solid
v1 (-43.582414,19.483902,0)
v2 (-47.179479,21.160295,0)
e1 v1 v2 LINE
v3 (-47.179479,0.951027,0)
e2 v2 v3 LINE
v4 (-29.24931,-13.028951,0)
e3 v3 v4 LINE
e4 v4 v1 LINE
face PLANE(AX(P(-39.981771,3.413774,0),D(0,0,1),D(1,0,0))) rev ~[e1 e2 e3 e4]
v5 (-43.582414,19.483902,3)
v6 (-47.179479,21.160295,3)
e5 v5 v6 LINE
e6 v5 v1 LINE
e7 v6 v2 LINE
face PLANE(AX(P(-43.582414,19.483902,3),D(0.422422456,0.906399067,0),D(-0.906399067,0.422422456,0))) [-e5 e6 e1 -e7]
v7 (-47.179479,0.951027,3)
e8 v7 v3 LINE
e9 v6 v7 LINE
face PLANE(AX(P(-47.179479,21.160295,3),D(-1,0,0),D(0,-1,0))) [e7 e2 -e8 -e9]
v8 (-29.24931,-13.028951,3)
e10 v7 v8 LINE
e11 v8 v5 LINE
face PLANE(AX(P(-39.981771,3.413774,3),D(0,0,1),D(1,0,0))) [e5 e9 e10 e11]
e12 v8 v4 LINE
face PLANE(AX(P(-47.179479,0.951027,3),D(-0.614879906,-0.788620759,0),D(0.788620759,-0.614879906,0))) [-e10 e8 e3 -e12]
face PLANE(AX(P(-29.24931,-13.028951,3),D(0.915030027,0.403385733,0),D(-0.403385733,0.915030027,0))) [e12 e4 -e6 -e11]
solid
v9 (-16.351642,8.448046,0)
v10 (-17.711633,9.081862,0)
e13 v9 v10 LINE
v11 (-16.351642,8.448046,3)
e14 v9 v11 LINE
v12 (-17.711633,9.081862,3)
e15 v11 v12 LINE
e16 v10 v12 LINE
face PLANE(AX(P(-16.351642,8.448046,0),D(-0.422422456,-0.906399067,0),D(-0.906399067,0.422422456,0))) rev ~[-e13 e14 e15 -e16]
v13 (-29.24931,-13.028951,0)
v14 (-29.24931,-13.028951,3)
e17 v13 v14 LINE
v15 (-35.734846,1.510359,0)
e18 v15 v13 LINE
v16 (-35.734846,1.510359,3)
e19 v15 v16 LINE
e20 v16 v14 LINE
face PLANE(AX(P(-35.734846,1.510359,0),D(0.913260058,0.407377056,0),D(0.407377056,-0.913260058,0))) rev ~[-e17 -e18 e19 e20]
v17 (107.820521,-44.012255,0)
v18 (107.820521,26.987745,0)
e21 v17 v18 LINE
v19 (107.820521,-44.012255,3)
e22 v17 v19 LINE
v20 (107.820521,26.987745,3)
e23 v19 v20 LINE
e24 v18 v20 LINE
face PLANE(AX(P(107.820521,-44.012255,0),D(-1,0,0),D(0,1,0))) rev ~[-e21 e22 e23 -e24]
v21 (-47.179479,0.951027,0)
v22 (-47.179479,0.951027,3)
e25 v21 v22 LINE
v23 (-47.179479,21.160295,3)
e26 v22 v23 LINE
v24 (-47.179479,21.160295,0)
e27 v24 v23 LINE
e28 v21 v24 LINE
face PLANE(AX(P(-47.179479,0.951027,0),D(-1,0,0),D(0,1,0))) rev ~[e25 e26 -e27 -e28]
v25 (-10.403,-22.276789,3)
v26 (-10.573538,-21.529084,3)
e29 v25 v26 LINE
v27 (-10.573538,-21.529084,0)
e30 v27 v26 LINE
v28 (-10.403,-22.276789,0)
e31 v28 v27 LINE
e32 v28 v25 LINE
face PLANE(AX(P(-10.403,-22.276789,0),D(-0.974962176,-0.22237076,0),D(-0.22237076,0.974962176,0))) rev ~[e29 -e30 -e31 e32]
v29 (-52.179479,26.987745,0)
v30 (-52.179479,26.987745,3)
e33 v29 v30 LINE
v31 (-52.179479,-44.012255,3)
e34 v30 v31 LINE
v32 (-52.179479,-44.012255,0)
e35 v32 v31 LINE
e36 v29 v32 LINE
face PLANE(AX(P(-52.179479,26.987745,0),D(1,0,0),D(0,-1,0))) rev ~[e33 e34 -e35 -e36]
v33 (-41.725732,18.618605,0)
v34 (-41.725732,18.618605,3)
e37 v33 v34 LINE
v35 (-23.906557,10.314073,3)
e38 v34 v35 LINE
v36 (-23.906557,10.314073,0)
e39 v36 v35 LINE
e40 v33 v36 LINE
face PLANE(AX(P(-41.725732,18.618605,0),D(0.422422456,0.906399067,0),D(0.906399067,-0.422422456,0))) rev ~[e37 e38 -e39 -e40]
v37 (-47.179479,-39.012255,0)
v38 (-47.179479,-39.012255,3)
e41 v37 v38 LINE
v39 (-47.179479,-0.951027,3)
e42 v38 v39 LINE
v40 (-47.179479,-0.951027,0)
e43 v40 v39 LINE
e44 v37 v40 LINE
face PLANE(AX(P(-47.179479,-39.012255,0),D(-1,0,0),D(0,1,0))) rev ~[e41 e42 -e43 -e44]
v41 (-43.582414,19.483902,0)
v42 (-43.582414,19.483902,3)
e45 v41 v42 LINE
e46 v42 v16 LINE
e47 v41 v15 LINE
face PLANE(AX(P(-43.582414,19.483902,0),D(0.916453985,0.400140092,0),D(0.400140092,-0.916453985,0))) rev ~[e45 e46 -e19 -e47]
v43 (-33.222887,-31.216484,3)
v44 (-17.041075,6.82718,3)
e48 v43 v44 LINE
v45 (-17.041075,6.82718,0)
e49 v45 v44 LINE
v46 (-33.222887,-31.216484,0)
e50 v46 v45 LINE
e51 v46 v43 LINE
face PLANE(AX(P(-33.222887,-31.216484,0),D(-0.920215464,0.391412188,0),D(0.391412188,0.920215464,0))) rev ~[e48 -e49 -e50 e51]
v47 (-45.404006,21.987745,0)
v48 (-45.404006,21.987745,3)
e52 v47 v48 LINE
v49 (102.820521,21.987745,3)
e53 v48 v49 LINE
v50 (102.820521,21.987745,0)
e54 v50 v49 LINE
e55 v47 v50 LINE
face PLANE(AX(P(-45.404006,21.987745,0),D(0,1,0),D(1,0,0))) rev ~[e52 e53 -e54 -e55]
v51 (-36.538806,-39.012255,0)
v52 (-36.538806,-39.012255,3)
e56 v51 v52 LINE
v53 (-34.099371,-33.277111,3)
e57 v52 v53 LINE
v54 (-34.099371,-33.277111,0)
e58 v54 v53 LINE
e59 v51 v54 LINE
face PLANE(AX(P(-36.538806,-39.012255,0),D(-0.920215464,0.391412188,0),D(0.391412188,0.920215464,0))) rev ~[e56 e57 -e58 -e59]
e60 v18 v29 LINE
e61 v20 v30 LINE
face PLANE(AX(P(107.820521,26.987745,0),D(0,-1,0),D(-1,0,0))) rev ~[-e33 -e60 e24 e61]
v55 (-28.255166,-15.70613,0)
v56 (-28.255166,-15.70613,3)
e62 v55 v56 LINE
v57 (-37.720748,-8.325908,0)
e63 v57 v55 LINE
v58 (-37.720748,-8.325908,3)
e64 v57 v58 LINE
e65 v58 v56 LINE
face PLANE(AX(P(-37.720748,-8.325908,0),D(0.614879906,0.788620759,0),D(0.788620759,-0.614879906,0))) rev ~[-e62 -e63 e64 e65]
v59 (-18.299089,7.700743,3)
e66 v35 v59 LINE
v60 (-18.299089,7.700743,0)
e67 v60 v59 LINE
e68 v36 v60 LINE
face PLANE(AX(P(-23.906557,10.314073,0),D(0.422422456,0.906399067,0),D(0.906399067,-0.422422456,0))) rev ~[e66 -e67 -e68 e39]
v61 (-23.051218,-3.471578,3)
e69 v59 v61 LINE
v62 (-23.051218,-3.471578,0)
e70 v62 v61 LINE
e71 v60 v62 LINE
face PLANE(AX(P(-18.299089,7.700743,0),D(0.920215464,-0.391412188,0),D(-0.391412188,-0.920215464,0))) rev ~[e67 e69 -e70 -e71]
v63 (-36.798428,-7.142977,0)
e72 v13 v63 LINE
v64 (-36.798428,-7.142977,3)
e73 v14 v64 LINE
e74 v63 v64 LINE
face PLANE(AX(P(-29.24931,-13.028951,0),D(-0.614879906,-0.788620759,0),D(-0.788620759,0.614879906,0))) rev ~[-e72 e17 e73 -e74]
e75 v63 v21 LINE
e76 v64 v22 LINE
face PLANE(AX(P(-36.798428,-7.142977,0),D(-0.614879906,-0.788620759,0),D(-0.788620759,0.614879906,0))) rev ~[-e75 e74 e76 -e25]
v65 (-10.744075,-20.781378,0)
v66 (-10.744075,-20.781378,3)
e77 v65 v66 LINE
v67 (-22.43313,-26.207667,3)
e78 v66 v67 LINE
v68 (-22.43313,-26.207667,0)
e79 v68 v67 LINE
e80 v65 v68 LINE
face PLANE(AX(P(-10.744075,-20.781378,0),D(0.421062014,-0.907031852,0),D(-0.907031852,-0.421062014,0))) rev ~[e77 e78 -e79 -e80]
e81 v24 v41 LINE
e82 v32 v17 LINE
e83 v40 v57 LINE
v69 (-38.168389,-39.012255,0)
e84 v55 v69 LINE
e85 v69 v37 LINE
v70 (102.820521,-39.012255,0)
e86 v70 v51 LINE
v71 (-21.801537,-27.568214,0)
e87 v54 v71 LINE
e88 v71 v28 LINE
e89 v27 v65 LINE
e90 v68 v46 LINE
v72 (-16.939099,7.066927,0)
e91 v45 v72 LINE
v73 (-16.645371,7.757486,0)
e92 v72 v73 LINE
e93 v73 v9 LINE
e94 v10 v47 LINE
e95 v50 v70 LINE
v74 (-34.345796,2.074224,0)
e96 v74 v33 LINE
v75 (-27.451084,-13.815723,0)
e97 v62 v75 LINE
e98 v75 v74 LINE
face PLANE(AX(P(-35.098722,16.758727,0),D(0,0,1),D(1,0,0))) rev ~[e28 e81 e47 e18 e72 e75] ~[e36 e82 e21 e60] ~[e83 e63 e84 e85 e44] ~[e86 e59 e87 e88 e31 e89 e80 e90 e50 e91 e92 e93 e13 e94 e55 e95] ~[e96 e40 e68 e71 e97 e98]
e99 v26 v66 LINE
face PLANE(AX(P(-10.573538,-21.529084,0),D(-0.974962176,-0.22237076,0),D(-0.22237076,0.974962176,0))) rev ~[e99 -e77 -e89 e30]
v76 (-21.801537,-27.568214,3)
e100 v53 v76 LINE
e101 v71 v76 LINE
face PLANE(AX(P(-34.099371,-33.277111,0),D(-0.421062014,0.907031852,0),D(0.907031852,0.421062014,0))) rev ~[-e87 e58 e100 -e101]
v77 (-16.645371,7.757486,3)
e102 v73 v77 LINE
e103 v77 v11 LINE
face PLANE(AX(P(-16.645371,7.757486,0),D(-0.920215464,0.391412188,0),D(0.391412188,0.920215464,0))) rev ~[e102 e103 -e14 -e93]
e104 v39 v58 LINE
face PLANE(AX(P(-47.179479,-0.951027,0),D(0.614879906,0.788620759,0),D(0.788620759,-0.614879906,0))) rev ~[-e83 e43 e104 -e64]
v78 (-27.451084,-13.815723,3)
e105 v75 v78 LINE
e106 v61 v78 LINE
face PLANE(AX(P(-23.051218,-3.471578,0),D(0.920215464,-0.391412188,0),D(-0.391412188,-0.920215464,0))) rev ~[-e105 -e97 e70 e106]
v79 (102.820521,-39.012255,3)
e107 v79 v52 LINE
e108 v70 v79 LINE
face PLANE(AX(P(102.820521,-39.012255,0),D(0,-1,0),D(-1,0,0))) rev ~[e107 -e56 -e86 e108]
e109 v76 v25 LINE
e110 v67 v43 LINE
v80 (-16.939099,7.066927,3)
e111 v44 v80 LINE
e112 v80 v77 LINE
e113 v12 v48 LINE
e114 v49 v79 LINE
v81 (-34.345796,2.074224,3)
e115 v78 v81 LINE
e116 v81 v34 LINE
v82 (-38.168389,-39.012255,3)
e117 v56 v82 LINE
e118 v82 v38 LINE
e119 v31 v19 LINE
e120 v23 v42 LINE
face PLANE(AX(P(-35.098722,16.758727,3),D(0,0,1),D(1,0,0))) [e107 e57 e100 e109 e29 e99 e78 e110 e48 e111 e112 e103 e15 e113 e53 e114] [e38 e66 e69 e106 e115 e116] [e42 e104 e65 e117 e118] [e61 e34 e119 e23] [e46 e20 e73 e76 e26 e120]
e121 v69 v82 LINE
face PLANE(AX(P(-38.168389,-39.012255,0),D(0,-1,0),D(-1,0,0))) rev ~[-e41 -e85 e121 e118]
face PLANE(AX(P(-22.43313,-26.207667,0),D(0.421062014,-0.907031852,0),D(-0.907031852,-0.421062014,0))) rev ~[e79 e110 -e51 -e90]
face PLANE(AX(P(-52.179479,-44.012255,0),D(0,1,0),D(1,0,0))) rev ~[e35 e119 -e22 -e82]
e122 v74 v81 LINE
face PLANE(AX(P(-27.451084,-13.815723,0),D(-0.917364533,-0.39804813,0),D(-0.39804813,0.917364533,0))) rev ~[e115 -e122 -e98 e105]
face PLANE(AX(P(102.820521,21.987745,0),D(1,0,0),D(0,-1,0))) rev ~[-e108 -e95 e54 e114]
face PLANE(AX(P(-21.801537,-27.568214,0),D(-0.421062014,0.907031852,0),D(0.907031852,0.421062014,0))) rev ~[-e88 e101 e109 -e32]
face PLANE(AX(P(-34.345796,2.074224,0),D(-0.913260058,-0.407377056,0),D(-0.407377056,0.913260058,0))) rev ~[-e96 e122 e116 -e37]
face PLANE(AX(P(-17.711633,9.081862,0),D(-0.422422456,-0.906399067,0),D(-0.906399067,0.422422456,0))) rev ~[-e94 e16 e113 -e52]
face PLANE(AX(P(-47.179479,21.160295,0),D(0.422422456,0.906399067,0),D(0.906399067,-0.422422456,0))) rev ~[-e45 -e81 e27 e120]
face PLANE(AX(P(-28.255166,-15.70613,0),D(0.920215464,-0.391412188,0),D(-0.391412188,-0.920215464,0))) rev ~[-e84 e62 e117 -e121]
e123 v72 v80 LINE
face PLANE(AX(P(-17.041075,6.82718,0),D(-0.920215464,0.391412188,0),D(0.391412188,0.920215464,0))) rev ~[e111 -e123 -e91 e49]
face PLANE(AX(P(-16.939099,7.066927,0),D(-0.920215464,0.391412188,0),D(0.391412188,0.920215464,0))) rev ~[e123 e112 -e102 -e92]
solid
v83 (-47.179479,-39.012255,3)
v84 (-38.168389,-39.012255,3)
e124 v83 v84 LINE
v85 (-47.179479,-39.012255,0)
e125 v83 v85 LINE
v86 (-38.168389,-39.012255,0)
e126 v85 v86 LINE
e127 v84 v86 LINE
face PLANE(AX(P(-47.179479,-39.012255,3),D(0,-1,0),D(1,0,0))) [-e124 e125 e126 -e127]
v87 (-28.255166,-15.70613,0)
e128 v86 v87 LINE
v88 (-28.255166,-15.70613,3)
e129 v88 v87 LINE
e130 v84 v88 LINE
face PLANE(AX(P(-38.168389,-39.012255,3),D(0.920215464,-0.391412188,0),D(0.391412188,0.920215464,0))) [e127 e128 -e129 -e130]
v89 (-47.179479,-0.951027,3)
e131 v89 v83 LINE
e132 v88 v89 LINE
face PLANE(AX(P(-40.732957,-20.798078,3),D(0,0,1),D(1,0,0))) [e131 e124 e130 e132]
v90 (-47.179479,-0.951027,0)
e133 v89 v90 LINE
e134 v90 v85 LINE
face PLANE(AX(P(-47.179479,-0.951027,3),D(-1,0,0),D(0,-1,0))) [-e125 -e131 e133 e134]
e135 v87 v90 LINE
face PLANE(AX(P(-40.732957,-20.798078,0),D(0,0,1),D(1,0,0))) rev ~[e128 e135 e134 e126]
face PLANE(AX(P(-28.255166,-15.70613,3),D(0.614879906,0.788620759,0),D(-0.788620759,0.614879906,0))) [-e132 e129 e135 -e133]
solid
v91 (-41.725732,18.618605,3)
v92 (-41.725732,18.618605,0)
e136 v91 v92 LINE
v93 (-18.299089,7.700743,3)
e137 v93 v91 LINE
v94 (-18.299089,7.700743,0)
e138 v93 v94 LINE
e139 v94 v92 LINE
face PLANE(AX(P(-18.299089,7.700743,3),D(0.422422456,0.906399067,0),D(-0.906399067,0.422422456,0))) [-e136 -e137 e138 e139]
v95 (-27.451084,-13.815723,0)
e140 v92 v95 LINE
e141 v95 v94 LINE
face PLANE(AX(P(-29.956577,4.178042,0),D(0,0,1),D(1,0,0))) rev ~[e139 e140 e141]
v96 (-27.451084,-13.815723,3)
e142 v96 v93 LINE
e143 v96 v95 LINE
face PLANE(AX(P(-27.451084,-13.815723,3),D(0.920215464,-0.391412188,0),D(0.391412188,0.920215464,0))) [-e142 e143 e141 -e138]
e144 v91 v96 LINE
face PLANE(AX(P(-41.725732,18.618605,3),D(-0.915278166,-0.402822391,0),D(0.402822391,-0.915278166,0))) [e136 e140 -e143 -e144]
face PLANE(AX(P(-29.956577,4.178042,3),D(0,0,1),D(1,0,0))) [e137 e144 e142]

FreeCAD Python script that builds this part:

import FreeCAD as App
import Part
import Sketcher

V = App.Vector
Q = App.Units.Quantity


def add_polygon(sketch, points):
    """Adds a closed chain of lines whose ends are joined by coincident constraints."""
    first, n = sketch.GeometryCount, len(points)
    for a, b in zip(points, points[1:] + points[:1]):
        sketch.addGeometry(Part.LineSegment(App.Vector(*a, 0), App.Vector(*b, 0)), False)
    for i in range(n):
        sketch.addConstraint(Sketcher.Constraint("Coincident", first + i, 2, first + (i + 1) % n, 1))

doc = App.newDocument("Part")
body = doc.addObject("PartDesign::Body", "Body")

sketch1 = body.newObject("Sketcher::SketchObject", "Sketch")
sketch1.AttachmentSupport = (doc.getObject("XY_Plane"), [""])
sketch1.MapMode = "FlatFace"
add_polygon(sketch1, [(-52.179479, 26.987745), (-52.179479, -44.012255), (107.820521, -44.012255), (107.820521, 26.987745)])
add_polygon(sketch1, [(-10.573538, -21.529084), (-10.744075, -20.781378), (-22.43313, -26.207667), (-33.222887, -31.216484), (-17.041075, 6.82718), (-16.939099, 7.066927), (-16.645371, 7.757486), (-16.351642, 8.448046), (-17.711633, 9.081862), (-45.404006, 21.987745), (102.820521, 21.987745), (102.820521, -39.012255), (-36.538806, -39.012255), (-34.099371, -33.277111), (-21.801537, -27.568214), (-10.403, -22.276789)])
add_polygon(sketch1, [(-38.168389, -39.012255), (-47.179479, -39.012255), (-47.179479, -0.951027), (-37.720748, -8.325908), (-28.255166, -15.70613)])
add_polygon(sketch1, [(-34.345796, 2.074224), (-41.725732, 18.618605), (-23.906557, 10.314073), (-18.299089, 7.700743), (-23.051218, -3.471578), (-27.451084, -13.815723)])
add_polygon(sketch1, [(-47.179479, 21.160295), (-43.582414, 19.483902), (-35.734846, 1.510359), (-29.24931, -13.028951), (-36.798428, -7.142977), (-47.179479, 0.951027)])
sketch1.addConstraint([
    Sketcher.Constraint("Vertical", 0),
    Sketcher.Constraint("Horizontal", 1),
    Sketcher.Constraint("Vertical", 2),
    Sketcher.Constraint("Horizontal", 3),
    Sketcher.Constraint("Horizontal", 13),
    Sketcher.Constraint("Vertical", 14),
    Sketcher.Constraint("Horizontal", 15),
    Sketcher.Constraint("Horizontal", 20),
    Sketcher.Constraint("Vertical", 21),
    Sketcher.Constraint("Vertical", 36),
    Sketcher.Constraint("DistanceX", 1, 1, 1, 2, 160.0),
    Sketcher.Constraint("DistanceY", 0, 2, 0, 1, 71.0),
    Sketcher.Constraint("DistanceY", 14, 2, 14, 1, 61.0),
    Sketcher.Constraint("DistanceY", 12, 2, 3, 2, 5.0),
    Sketcher.Constraint("DistanceX", 13, 2, 2, 2, 5.0),
    Sketcher.Constraint("DistanceX", 0, 2, 20, 2, 5.0),
    Sketcher.Constraint("DistanceY", 0, 2, 20, 2, 5.0),
    Sketcher.Constraint("DistanceX", 3, 2, 36, 2, 5.0),
    Sketcher.Constraint("DistanceX", 18, 2, -1, 1, 10.403),
    Sketcher.Constraint("DistanceX", 7, 2, 4, 2, 6.296999),
    Sketcher.Constraint("DistanceX", 17, 2, 19, 2, 11.227999),
    Sketcher.Constraint("Distance", 30, 17.321301),
    Sketcher.Constraint("DistanceX", 20, 2, 20, 1, 9.01109),
    Sketcher.Constraint("DistanceX", 8, 2, -1, 1, 16.939099),
    Sketcher.Constraint("DistanceY", -1, 1, 31, 2, 19.483902),
    Sketcher.Constraint("DistanceY", 10, 2, 12, 2, 13.539699),
    Sketcher.Constraint("DistanceY", 6, 2, 19, 2, 9.6874),
    Sketcher.Constraint("DistanceX", 25, 2, 11, 2, 24.014099),
    Sketcher.Constraint("DistanceY", 28, 2, 30, 2, 5.545801),
    Sketcher.Constraint("DistanceX", 22, 2, 32, 2, 1.985902),
    Sketcher.Constraint("DistanceY", 34, 2, 30, 2, 9.217201),
    Sketcher.Constraint("Distance", 5, 12.887149),
    Sketcher.Constraint("Distance", 25, 18.115739),
    Sketcher.Constraint("Distance", 32, 19.612051),
    Sketcher.Constraint("Distance", 33, 15.92023),
    Sketcher.Constraint("Distance", 34, 9.572559),
    Sketcher.Constraint("DistanceX", 13, 1, 13, 2, 148.224526),
    Sketcher.Constraint("DistanceX", 15, 2, 15, 1, 139.359326),
    Sketcher.Constraint("DistanceY", 21, 1, 21, 2, 38.061228),
    Sketcher.Constraint("DistanceY", 36, 1, 36, 2, 20.209267),
    Sketcher.Constraint("DistanceX", 0, 2, -1, 1, 52.179479),
    Sketcher.Constraint("DistanceX", 5, 2, -1, 1, 22.43313),
    Sketcher.Constraint("DistanceY", -1, 1, 7, 2, 6.82718),
    Sketcher.Constraint("DistanceX", 9, 2, -1, 1, 16.645371),
    Sketcher.Constraint("DistanceX", 16, 2, -1, 1, 34.099371),
    Sketcher.Constraint("DistanceY", 16, 2, -1, 1, 33.277111),
    Sketcher.Constraint("DistanceY", 18, 2, -1, 1, 22.276789),
    Sketcher.Constraint("DistanceX", 22, 2, -1, 1, 37.720748),
    Sketcher.Constraint("DistanceY", 23, 2, -1, 1, 15.70613),
    Sketcher.Constraint("DistanceX", 27, 2, -1, 1, 18.299089),
    Sketcher.Constraint("DistanceX", 28, 2, -1, 1, 23.051218),
    Sketcher.Constraint("DistanceY", -1, 1, 32, 2, 1.510359),
    Sketcher.Constraint("DistanceX", 33, 2, -1, 1, 29.24931),
    Sketcher.Constraint("DistanceX", 34, 2, -1, 1, 36.798428),
    Sketcher.Constraint("DistanceY", 5, 2, 4, 2, 5.426289),
    Sketcher.Constraint("DistanceY", 0, 2, 5, 2, 17.804588),
    Sketcher.Constraint("DistanceY", 0, 2, 6, 2, 12.795771),
    Sketcher.Constraint("DistanceX", 6, 2, 4, 2, 22.478811),
    Sketcher.Constraint("DistanceY", 4, 2, 7, 2, 27.608558),
    Sketcher.Constraint("DistanceY", 8, 2, 3, 2, 19.920818),
    Sketcher.Constraint("DistanceY", 8, 2, 9, 2, 0.69056),
    Sketcher.Constraint("DistanceX", 9, 2, 10, 2, 0.293728),
    Sketcher.Constraint("DistanceX", 11, 2, 10, 2, 1.359991),
    Sketcher.Constraint("DistanceY", 7, 2, 11, 2, 2.254682),
    Sketcher.Constraint("DistanceX", 6, 2, 17, 2, 11.42135),
    Sketcher.Constraint("DistanceY", 6, 2, 17, 2, 3.64827),
    Sketcher.Constraint("DistanceY", 22, 2, 21, 2, 7.37488),
    Sketcher.Constraint("DistanceX", 23, 2, 17, 2, 6.453629),
    Sketcher.Constraint("DistanceY", 25, 2, 12, 2, 3.36914),
    Sketcher.Constraint("DistanceY", 11, 2, 26, 2, 1.232211),
    Sketcher.Constraint("DistanceX", 26, 2, 7, 2, 6.865482),
    Sketcher.Constraint("DistanceY", 27, 2, 11, 2, 1.381119),
    Sketcher.Constraint("DistanceX", 23, 2, 29, 2, 0.804082),
    Sketcher.Constraint("DistanceY", 36, 2, 12, 2, 0.82745),
])
pad1 = body.newObject("PartDesign::Pad", "Pad")
pad1.Profile = sketch1
pad1.Length = 3
body2 = doc.addObject("PartDesign::Body", "Body001")

sketch2 = body2.newObject("Sketcher::SketchObject", "Sketch001")
sketch2.AttachmentSupport = (doc.getObject("XY_Plane001"), [""])
sketch2.MapMode = "FlatFace"
sketch2.AttachmentOffset = App.Placement(V(0, 0, 3), App.Rotation())
add_polygon(sketch2, [(-18, 8), (-42, 19), (-27, -14)])
sketch2.addConstraint([
    Sketcher.Constraint("Distance", 1, 35.43658),
    Sketcher.Constraint("DistanceX", 2, 2, -1, 1, 18.299089),
    Sketcher.Constraint("DistanceY", 1, 2, 0, 2, 32.434328),
    Sketcher.Constraint("DistanceY", 2, 2, 0, 2, 10.917862),
    Sketcher.Constraint("Distance", 0, 25.845837),
    Sketcher.Constraint("DistanceY", -1, 1, 0, 2, 18.618605),
])
pad2 = body2.newObject("PartDesign::Pad", "Pad001")
pad2.Profile = sketch2
pad2.Length = 3
pad2.Reversed = True
body3 = doc.addObject("PartDesign::Body", "Body002")

sketch3 = body3.newObject("Sketcher::SketchObject", "Sketch002")
sketch3.AttachmentSupport = (doc.getObject("XY_Plane002"), [""])
sketch3.MapMode = "FlatFace"
sketch3.AttachmentOffset = App.Placement(V(0, 0, 3), App.Rotation())
add_polygon(sketch3, [(-29.2, -13), (-43.6, 19.5), (-47.2, 21.2), (-47.2, 1)])
sketch3.addConstraint([
    Sketcher.Constraint("Vertical", 2),
    Sketcher.Constraint("Angle", 0, Q("113.790008 deg")),
    Sketcher.Constraint("DistanceY", -1, 1, 0, 2, 19.483902),
    Sketcher.Constraint("Distance", 3, 22.736112),
    Sketcher.Constraint("DistanceY", 2, 2, 2, 1, 20.209267),
    Sketcher.Constraint("DistanceX", 1, 2, -1, 1, 47.179479),
    Sketcher.Constraint("DistanceX", 3, 2, -1, 1, 29.24931),
    Sketcher.Constraint("DistanceY", 3, 2, -1, 1, 13.028951),
])
pad3 = body3.newObject("PartDesign::Pad", "Pad002")
pad3.Profile = sketch3
pad3.Length = 3
pad3.Reversed = True
body4 = doc.addObject("PartDesign::Body", "Body003")

sketch4 = body4.newObject("Sketcher::SketchObject", "Sketch003")
sketch4.AttachmentSupport = (doc.getObject("XY_Plane003"), [""])
sketch4.MapMode = "FlatFace"
sketch4.AttachmentOffset = App.Placement(V(0, 0, 3), App.Rotation())
add_polygon(sketch4, [(-38, -39), (-28, -16), (-47, -1), (-47, -39)])
sketch4.addConstraint([
    Sketcher.Constraint("Vertical", 2),
    Sketcher.Constraint("Horizontal", 3),
    Sketcher.Constraint("DistanceX", 3, 1, 3, 2, 9.01109),
    Sketcher.Constraint("DistanceY", 2, 2, 2, 1, 38.061228),
    Sketcher.Constraint("DistanceY", 0, 2, -1, 1, 15.70613),
    Sketcher.Constraint("DistanceX", 1, 2, -1, 1, 47.179479),
    Sketcher.Constraint("Distance", 0, 25.326813),
    Sketcher.Constraint("Distance", 1, 23.996723),
])
pad4 = body4.newObject("PartDesign::Pad", "Pad003")
pad4.Profile = sketch4
pad4.Length = 3
pad4.Reversed = True

doc.recompute()
